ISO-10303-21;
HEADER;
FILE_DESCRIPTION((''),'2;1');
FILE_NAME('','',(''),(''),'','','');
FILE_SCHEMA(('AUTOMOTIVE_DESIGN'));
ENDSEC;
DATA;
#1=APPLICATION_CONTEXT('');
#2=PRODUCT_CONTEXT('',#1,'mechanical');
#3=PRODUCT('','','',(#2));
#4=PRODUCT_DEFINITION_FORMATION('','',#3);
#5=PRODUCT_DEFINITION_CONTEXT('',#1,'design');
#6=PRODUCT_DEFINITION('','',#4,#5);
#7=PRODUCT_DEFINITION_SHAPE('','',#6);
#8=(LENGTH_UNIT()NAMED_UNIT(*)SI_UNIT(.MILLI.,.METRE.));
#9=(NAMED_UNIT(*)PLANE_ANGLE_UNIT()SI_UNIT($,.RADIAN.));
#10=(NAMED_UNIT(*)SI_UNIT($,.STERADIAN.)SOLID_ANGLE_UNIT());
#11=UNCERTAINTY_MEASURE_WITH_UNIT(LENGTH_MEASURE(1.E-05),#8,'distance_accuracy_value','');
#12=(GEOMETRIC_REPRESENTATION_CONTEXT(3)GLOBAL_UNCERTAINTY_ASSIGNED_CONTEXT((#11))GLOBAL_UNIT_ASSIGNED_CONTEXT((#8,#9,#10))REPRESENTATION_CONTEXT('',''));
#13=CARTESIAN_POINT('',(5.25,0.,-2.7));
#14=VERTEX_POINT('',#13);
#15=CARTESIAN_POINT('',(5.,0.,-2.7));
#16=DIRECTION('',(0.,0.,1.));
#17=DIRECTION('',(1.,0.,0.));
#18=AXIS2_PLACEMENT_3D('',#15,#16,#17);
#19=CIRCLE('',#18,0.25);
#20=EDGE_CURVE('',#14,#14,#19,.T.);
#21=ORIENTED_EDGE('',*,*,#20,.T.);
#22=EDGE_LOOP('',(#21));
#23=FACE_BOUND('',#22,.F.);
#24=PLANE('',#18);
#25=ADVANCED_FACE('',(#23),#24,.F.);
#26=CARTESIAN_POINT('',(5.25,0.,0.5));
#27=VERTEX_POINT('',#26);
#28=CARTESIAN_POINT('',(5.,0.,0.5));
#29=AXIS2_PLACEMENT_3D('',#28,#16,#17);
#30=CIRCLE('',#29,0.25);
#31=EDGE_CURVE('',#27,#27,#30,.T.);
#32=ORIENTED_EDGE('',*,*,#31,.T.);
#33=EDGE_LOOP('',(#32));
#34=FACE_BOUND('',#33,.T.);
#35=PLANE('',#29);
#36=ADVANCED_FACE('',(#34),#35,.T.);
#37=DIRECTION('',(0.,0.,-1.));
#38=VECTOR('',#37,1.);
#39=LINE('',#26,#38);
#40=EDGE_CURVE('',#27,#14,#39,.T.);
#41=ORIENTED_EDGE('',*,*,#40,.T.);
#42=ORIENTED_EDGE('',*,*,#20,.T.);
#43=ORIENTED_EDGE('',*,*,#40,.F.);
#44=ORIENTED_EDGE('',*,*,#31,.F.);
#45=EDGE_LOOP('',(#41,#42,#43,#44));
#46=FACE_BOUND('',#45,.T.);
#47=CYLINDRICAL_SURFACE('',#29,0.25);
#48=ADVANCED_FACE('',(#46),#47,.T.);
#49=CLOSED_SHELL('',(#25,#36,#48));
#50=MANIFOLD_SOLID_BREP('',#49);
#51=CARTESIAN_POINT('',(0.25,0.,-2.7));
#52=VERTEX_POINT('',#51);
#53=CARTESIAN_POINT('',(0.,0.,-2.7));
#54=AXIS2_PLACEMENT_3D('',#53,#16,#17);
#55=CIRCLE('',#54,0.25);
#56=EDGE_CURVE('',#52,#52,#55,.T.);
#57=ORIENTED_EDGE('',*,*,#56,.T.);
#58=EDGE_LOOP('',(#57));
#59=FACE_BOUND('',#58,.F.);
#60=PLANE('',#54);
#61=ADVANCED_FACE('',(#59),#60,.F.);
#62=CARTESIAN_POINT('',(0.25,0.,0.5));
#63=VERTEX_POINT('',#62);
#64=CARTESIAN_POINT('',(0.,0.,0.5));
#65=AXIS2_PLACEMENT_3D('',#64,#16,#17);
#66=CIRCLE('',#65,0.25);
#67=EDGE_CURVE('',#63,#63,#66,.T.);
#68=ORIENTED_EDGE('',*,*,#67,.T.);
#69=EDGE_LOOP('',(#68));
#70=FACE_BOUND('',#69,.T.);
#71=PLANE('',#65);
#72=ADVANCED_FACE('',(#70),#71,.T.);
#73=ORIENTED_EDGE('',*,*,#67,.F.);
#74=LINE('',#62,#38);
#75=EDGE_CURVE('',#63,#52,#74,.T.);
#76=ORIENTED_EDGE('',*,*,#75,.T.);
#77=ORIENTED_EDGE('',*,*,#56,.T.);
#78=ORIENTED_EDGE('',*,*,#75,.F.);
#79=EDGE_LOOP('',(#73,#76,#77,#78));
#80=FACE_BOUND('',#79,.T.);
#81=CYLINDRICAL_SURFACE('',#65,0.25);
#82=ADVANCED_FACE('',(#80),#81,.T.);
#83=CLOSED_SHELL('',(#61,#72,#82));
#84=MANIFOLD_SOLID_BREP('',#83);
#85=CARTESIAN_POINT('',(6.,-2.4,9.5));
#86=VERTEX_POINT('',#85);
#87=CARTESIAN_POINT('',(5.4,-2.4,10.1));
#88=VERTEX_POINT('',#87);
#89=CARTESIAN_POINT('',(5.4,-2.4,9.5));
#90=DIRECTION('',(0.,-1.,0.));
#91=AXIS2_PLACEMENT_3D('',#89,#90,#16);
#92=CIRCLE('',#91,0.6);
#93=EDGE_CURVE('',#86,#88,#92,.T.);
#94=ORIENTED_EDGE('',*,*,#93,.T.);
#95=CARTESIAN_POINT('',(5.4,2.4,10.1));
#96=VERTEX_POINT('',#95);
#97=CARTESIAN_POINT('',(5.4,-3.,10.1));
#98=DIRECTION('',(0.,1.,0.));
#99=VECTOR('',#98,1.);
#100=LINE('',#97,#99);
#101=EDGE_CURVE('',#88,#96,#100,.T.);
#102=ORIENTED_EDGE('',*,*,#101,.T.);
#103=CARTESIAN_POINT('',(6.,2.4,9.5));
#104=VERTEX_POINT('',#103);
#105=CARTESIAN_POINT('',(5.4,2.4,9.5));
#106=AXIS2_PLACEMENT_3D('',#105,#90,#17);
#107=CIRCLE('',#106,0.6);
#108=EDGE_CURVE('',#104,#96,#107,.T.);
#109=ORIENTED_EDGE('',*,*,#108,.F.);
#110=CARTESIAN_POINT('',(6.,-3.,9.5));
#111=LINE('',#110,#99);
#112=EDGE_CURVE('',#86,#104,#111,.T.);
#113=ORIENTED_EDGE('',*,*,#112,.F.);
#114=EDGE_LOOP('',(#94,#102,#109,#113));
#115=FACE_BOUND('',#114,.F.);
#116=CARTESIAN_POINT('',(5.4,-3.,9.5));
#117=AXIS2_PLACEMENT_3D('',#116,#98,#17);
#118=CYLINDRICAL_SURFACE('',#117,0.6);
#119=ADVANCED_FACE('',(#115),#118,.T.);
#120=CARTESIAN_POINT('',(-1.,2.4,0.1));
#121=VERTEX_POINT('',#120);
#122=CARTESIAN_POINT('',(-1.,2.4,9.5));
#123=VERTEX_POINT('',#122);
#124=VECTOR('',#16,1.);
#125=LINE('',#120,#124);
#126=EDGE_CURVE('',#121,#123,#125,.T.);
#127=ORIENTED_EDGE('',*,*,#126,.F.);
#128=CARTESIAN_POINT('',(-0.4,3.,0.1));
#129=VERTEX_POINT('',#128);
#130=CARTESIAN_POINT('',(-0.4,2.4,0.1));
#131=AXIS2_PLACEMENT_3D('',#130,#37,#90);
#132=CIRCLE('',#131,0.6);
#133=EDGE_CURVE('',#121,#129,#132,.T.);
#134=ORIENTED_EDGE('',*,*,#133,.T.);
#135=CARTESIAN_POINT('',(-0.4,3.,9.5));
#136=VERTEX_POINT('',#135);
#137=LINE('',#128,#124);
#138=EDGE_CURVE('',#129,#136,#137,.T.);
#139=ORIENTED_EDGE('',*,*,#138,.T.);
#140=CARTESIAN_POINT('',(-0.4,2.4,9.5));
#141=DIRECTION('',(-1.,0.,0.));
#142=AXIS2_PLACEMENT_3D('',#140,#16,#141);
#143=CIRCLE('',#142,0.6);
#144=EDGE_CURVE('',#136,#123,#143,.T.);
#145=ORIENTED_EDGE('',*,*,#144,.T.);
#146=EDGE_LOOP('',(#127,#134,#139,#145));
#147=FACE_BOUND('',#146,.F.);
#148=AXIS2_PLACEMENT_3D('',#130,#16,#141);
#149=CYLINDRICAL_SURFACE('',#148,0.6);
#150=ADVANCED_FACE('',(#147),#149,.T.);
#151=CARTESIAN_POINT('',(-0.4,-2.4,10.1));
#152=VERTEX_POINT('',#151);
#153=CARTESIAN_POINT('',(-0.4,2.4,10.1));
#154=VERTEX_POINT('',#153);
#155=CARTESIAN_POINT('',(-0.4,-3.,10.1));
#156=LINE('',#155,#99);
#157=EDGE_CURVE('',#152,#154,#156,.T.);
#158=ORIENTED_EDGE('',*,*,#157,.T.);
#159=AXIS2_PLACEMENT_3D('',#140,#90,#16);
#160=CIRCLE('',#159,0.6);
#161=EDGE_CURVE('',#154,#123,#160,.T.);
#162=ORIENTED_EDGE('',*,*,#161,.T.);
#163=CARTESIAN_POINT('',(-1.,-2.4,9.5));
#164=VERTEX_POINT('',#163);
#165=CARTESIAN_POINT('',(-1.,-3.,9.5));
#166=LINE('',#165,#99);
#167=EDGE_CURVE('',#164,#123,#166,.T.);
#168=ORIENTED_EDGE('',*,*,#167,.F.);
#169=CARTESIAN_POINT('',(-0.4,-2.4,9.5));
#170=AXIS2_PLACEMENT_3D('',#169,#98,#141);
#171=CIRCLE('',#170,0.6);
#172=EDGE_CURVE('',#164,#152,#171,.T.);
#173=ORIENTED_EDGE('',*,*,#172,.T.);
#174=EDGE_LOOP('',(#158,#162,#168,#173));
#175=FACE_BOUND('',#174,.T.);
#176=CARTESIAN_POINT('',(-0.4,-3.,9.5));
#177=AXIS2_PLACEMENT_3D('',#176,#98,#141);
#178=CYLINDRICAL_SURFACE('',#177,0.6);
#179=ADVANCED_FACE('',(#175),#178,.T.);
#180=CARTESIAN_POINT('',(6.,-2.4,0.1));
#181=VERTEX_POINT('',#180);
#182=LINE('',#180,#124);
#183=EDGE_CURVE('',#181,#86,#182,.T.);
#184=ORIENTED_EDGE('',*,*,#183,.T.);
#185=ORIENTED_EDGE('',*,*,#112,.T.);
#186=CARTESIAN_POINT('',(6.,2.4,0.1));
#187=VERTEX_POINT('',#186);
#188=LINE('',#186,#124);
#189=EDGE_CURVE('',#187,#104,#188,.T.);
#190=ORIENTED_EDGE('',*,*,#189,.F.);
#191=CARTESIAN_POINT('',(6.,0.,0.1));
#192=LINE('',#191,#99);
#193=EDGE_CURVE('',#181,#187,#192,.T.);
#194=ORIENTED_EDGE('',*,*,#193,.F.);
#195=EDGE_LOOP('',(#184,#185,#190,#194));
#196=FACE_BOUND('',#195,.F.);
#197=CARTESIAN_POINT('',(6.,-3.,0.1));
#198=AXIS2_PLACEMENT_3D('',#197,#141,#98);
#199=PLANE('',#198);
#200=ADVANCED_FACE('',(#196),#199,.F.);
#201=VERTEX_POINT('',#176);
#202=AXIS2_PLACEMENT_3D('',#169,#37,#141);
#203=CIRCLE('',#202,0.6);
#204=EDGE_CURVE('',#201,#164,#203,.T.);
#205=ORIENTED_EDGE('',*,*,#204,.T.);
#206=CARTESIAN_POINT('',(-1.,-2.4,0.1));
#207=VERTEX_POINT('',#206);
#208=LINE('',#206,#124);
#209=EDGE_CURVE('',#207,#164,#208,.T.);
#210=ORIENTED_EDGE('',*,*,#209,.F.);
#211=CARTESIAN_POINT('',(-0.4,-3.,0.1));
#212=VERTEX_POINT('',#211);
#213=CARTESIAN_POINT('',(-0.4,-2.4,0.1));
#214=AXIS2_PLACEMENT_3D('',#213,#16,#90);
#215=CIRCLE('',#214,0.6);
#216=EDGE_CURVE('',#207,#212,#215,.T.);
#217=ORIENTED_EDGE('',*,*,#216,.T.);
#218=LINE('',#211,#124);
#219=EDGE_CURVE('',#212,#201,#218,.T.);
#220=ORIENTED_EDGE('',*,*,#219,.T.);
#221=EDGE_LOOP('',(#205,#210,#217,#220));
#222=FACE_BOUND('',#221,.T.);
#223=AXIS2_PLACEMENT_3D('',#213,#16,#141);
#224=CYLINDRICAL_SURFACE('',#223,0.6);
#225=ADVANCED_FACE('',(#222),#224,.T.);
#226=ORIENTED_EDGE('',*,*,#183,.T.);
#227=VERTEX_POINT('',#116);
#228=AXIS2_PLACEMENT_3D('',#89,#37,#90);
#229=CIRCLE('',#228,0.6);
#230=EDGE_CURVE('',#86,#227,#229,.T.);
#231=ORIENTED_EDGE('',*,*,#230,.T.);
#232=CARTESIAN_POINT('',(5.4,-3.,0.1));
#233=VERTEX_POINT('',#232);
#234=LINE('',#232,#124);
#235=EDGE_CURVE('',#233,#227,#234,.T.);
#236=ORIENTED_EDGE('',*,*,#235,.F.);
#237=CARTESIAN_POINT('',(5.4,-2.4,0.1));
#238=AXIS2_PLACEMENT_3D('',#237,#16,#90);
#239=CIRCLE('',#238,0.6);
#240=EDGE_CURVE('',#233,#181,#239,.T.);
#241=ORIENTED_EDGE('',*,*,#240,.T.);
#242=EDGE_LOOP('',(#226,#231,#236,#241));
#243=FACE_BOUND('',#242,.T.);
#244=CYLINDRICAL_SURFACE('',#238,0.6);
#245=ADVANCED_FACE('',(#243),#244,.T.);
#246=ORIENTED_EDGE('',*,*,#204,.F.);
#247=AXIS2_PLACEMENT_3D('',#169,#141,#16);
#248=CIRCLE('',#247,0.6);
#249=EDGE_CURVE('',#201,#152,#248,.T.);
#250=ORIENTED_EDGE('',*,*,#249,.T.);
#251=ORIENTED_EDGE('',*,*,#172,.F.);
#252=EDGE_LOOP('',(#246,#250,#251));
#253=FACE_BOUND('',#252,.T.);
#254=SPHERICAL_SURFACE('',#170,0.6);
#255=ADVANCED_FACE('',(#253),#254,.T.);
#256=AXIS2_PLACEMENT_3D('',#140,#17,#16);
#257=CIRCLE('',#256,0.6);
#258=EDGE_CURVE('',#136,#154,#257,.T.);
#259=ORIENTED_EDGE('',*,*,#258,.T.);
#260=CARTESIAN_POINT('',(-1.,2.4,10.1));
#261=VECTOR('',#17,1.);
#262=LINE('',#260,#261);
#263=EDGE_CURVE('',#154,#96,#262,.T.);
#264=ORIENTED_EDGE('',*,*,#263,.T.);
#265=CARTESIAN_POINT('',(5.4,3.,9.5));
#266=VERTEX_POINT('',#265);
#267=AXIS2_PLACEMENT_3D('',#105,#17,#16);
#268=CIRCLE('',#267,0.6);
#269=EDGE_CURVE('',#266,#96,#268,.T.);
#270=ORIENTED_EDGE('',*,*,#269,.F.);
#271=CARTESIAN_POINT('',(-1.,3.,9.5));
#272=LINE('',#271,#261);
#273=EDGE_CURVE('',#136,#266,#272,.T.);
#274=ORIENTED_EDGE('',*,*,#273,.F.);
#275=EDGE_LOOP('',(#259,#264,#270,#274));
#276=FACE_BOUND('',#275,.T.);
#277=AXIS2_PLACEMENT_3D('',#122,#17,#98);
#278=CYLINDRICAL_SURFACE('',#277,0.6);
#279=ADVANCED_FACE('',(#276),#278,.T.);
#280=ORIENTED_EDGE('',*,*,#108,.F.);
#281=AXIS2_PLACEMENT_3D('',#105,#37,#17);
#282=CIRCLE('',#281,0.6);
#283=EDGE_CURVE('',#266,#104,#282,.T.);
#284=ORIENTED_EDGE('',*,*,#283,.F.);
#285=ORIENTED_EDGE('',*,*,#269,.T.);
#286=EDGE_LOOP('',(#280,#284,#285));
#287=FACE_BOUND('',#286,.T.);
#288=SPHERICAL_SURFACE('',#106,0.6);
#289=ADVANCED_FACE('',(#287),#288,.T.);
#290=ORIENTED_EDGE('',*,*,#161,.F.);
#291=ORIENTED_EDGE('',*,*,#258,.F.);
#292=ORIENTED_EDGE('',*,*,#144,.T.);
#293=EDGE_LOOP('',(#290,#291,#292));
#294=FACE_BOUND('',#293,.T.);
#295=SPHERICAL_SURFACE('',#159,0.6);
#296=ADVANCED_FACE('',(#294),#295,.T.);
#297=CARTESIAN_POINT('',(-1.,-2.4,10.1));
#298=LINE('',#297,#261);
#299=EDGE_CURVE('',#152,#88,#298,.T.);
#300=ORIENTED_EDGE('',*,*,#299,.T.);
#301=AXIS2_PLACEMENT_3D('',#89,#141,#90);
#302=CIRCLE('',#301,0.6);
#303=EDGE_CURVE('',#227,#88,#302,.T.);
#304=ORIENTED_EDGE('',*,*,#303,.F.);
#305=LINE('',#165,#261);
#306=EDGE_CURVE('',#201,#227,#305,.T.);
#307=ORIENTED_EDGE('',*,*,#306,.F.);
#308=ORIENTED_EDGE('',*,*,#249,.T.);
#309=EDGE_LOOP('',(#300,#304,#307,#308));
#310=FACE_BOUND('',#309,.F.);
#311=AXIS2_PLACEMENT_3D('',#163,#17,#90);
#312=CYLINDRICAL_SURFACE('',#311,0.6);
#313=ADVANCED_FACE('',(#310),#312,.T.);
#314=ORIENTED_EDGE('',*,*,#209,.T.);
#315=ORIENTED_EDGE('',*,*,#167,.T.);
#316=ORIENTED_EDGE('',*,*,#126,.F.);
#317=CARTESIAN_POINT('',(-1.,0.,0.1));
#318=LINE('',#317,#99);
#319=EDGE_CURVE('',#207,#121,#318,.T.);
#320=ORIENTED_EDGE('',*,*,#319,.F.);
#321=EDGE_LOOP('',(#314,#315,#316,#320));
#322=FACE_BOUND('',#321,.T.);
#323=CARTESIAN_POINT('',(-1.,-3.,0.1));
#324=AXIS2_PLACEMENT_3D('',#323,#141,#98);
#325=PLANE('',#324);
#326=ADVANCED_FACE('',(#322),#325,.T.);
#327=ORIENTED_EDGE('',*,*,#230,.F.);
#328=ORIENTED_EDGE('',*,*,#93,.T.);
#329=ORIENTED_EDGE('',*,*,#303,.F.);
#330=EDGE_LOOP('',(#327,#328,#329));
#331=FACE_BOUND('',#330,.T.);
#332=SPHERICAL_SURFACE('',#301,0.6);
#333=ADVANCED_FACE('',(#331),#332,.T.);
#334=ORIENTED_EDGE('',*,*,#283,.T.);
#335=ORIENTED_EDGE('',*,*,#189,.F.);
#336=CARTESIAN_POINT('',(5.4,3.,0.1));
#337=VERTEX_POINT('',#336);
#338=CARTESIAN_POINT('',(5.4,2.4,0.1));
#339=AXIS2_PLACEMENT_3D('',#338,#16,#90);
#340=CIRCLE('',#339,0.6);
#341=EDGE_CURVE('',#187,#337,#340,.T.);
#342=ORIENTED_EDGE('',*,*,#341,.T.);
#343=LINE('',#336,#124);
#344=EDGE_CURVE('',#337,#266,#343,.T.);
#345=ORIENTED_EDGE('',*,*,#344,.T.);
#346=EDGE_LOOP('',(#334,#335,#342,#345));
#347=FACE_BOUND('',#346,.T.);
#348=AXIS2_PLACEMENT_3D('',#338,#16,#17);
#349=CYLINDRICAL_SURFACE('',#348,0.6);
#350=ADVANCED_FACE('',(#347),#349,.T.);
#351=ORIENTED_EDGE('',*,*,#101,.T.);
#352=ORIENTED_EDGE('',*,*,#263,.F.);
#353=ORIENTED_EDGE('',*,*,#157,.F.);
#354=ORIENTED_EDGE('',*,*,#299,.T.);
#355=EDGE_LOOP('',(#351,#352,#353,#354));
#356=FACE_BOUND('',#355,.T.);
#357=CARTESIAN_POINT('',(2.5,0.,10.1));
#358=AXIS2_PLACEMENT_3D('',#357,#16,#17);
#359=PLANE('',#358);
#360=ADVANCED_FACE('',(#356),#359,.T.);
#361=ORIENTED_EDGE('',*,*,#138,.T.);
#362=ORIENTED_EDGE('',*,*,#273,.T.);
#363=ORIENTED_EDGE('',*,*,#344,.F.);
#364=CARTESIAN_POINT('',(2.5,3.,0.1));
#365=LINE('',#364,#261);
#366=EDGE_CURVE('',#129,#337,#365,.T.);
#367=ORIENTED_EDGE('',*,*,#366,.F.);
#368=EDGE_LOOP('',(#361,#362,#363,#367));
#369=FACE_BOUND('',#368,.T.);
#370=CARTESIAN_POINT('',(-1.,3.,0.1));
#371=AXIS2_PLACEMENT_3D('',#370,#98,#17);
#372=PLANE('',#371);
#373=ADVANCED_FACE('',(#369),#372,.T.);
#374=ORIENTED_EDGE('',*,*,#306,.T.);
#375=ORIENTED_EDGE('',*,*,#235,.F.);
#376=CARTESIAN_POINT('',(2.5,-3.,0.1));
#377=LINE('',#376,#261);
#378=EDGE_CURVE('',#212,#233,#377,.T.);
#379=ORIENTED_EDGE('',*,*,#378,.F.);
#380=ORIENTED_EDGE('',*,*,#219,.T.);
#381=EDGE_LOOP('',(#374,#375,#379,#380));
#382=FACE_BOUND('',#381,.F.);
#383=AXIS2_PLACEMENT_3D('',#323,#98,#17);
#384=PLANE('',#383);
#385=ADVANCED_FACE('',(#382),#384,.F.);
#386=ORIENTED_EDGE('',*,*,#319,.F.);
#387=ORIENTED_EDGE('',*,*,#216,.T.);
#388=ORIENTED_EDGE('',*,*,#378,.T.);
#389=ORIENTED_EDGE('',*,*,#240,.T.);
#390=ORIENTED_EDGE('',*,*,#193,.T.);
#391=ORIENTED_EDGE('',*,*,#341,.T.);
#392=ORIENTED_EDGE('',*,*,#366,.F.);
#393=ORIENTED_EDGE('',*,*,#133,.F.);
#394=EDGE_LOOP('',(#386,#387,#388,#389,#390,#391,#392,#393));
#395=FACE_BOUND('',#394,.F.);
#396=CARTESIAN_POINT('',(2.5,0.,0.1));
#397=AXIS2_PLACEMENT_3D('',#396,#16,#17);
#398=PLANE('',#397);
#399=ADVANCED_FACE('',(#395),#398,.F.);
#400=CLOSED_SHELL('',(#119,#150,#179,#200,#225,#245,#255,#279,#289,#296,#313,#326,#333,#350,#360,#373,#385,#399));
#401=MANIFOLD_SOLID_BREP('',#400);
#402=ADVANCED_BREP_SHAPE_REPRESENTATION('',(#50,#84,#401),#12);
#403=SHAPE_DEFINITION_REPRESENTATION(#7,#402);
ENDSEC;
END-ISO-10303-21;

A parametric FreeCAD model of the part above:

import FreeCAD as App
import Part
import Sketcher


def edges_at(feature, points):
    """Names of the edges that pass closest to the given points."""
    edges = feature.Shape.Edges
    near = lambda p: min(range(len(edges)), key=lambda i: edges[i].distToShape(Part.Vertex(*p))[0])
    return sorted({f"Edge{near(p) + 1}" for p in points})


def add_polygon(sketch, points):
    """Adds a closed chain of lines whose ends are joined by coincident constraints."""
    first, n = sketch.GeometryCount, len(points)
    for a, b in zip(points, points[1:] + points[:1]):
        sketch.addGeometry(Part.LineSegment(App.Vector(*a, 0), App.Vector(*b, 0)), False)
    for i in range(n):
        sketch.addConstraint(Sketcher.Constraint("Coincident", first + i, 2, first + (i + 1) % n, 1))

doc = App.newDocument("Part")
body = doc.addObject("PartDesign::Body", "Body")

# Sketch on XY plane
sketch1 = body.newObject("Sketcher::SketchObject", "Sketch")
sketch1.AttachmentSupport = (doc.getObject("XY_Plane"), [""])
sketch1.MapMode = "FlatFace"
sketch1.AttachmentOffset = App.Placement(App.Vector(0, 0, 0.1), App.Rotation())
add_polygon(sketch1, [(-1, 3), (-1, -3), (6, -3), (6, 3)])  # lines 0-3
sketch1.addConstraint([
    Sketcher.Constraint("Vertical", 0),
    Sketcher.Constraint("Horizontal", 1),
    Sketcher.Constraint("Vertical", 2),
    Sketcher.Constraint("Horizontal", 3),
    Sketcher.Constraint("DistanceX", 1, 1, 1, 2, 7.0),
    Sketcher.Constraint("DistanceY", 0, 2, 0, 1, 6.0),
    Sketcher.Constraint("DistanceX", 0, 2, -1, 1, 1.0),
    Sketcher.Constraint("DistanceY", 0, 2, -1, 1, 3.0),
])
pad1 = body.newObject("PartDesign::Pad", "Pad")
pad1.Profile = sketch1
pad1.Length = 10
doc.recompute()

fillet = body.newObject("PartDesign::Fillet", "Fillet")
fillet.Base = (pad1, edges_at(pad1, [
    (-1, 0, 10.1),
    (-1, -3, 5.1),
    (2.5, -3, 10.1),
    (6, -3, 5.1),
    (6, 0, 10.1),
    (6, 3, 5.1),
    (2.5, 3, 10.1),
    (-1, 3, 5.1),
]))
fillet.Radius = 0.6
body2 = doc.addObject("PartDesign::Body", "Body001")
body2.AllowCompound = True

# Sketch on XY plane
sketch2 = body2.newObject("Sketcher::SketchObject", "Sketch001")
sketch2.AttachmentSupport = (doc.getObject("XY_Plane001"), [""])
sketch2.MapMode = "FlatFace"
sketch2.AttachmentOffset = App.Placement(App.Vector(0, 0, 0.5), App.Rotation())
sketch2.addGeometry([
    Part.Circle(App.Vector(0, 0, 0), App.Vector(0, 0, 1), 0.25),
    Part.Circle(App.Vector(5, 0, 0), App.Vector(0, 0, 1), 0.25),
], False)
sketch2.addConstraint([
    Sketcher.Constraint("Coincident", 0, 3, -1, 1),
    Sketcher.Constraint("Equal", 0, 1),
    Sketcher.Constraint("PointOnObject", 1, 3, -1),
    Sketcher.Constraint("Diameter", 0, 0.5),
    Sketcher.Constraint("DistanceX", -1, 1, 1, 3, 5.0),
])
pad2 = body2.newObject("PartDesign::Pad", "Pad001")
pad2.Profile = sketch2
pad2.Length = 3.2
pad2.Reversed = True

doc.recompute()
